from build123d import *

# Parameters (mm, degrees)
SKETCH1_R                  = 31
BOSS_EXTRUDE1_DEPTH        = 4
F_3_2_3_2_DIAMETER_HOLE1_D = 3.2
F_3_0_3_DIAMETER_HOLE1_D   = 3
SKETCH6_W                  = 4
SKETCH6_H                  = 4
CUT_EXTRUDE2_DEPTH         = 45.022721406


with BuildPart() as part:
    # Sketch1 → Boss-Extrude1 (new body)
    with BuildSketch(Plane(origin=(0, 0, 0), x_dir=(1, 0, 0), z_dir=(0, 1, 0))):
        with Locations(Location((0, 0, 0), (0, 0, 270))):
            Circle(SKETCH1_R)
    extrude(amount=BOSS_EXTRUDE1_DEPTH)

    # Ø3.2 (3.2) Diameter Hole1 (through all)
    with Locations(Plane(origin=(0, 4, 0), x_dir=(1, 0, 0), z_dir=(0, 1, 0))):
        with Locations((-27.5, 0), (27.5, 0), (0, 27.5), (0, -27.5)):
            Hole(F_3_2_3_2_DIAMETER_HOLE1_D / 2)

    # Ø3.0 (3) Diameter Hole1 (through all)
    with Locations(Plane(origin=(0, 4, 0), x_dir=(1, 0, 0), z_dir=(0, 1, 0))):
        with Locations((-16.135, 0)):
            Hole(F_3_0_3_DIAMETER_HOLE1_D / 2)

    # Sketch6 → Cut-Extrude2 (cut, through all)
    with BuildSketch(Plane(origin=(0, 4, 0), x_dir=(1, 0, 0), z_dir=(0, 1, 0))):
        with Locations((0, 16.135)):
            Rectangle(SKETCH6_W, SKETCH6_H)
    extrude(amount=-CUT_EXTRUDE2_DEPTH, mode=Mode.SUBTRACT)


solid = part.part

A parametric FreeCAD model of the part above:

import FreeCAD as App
import Part
import Sketcher

V = App.Vector
Q = App.Units.Quantity


def add_polygon(sketch, points):
    """Adds a closed chain of lines whose ends are joined by coincident constraints."""
    first, n = sketch.GeometryCount, len(points)
    for a, b in zip(points, points[1:] + points[:1]):
        sketch.addGeometry(Part.LineSegment(App.Vector(*a, 0), App.Vector(*b, 0)), False)
    for i in range(n):
        sketch.addConstraint(Sketcher.Constraint("Coincident", first + i, 2, first + (i + 1) % n, 1))

doc = App.newDocument("Part")
body = doc.addObject("PartDesign::Body", "Body")

sketch1 = body.newObject("Sketcher::SketchObject", "Sketch")
sketch1.AttachmentSupport = (doc.getObject("XZ_Plane"), [""])
sketch1.MapMode = "FlatFace"
sketch1.addGeometry(Part.Circle(V(0, 0, 0), V(0, 0, 1), 31), False)
sketch1.addConstraint([
    Sketcher.Constraint("Coincident", 0, 3, -1, 1),
    Sketcher.Constraint("Diameter", 0, Q("62 mm")),
])
pad1 = body.newObject("PartDesign::Pad", "Pad")
pad1.Profile = sketch1
pad1.Length = 4
pad1.Reversed = True

sketch2 = body.newObject("Sketcher::SketchObject", "Sketch001")
sketch2.AttachmentSupport = (doc.getObject("XZ_Plane"), [""])
sketch2.MapMode = "FlatFace"
sketch2.AttachmentOffset = App.Placement(V(0, 0, -4), App.Rotation())
sketch2.addGeometry([
    Part.Circle(V(-27.5, 0, 0), V(0, 0, 1), 1.6),
    Part.Circle(V(27.5, 0, 0), V(0, 0, 1), 1.6),
    Part.Circle(V(0, -27.5, 0), V(0, 0, 1), 1.6),
    Part.Circle(V(0, 27.5, 0), V(0, 0, 1), 1.6),
], False)
sketch2.addConstraint([
    Sketcher.Constraint("Equal", 0, 1),
    Sketcher.Constraint("Equal", 1, 2),
    Sketcher.Constraint("Equal", 2, 3),
    Sketcher.Constraint("Symmetric", 0, 3, 1, 3, -1, 1),
    Sketcher.Constraint("Symmetric", 2, 3, 3, 3, -1, 1),
    Sketcher.Constraint("PointOnObject", 0, 3, -1),
    Sketcher.Constraint("PointOnObject", 2, 3, -2),
    Sketcher.Constraint("Diameter", 0, Q("3.2 mm")),
    Sketcher.Constraint("DistanceX", 0, 3, 1, 3, Q("55 mm")),
    Sketcher.Constraint("DistanceY", 2, 3, 3, 3, Q("55 mm")),
])
doc.recompute()
hole = body.newObject("PartDesign::Hole", "Hole")
hole.Profile = sketch2
hole.ThreadType = "None"
hole.Diameter = 3.2
hole.DepthType = "ThroughAll"
hole.Reversed = True

sketch3 = body.newObject("Sketcher::SketchObject", "Sketch002")
sketch3.AttachmentSupport = (doc.getObject("XZ_Plane"), [""])
sketch3.MapMode = "FlatFace"
sketch3.AttachmentOffset = App.Placement(V(0, 0, -4), App.Rotation())
sketch3.addGeometry(Part.Circle(V(-16.1, 0, 0), V(0, 0, 1), 1.5), False)
sketch3.addConstraint([
    Sketcher.Constraint("PointOnObject", 0, 3, -1),
    Sketcher.Constraint("Diameter", 0, Q("3 mm")),
    Sketcher.Constraint("DistanceX", 0, 3, -1, 1, Q("16.135 mm")),
])
doc.recompute()
hole2 = body.newObject("PartDesign::Hole", "Hole001")
hole2.Profile = sketch3
hole2.ThreadType = "None"
hole2.Diameter = 3
hole2.DepthType = "ThroughAll"
hole2.Reversed = True

sketch4 = body.newObject("Sketcher::SketchObject", "Sketch003")
sketch4.AttachmentSupport = (doc.getObject("XZ_Plane"), [""])
sketch4.MapMode = "FlatFace"
sketch4.AttachmentOffset = App.Placement(V(0, 0, -4), App.Rotation())
add_polygon(sketch4, [(-2, -18.1), (-2, -14.1), (2, -14.1), (2, -18.1)])
sketch4.addConstraint([
    Sketcher.Constraint("Vertical", 0),
    Sketcher.Constraint("Horizontal", 1),
    Sketcher.Constraint("Vertical", 2),
    Sketcher.Constraint("Horizontal", 3),
    Sketcher.Constraint("Equal", 3, 0),
    Sketcher.Constraint("DistanceX", 1, 1, 1, 2, Q("4 mm")),
    Sketcher.Constraint("DistanceX", 0, 2, -1, 1, Q("2 mm")),
    Sketcher.Constraint("DistanceY", 0, 2, -1, 1, Q("14.135 mm")),
])
pocket1 = body.newObject("PartDesign::Pocket", "Pocket")
pocket1.Profile = sketch4
pocket1.Type = "ThroughAll"
pocket1.Reversed = True

doc.recompute()
